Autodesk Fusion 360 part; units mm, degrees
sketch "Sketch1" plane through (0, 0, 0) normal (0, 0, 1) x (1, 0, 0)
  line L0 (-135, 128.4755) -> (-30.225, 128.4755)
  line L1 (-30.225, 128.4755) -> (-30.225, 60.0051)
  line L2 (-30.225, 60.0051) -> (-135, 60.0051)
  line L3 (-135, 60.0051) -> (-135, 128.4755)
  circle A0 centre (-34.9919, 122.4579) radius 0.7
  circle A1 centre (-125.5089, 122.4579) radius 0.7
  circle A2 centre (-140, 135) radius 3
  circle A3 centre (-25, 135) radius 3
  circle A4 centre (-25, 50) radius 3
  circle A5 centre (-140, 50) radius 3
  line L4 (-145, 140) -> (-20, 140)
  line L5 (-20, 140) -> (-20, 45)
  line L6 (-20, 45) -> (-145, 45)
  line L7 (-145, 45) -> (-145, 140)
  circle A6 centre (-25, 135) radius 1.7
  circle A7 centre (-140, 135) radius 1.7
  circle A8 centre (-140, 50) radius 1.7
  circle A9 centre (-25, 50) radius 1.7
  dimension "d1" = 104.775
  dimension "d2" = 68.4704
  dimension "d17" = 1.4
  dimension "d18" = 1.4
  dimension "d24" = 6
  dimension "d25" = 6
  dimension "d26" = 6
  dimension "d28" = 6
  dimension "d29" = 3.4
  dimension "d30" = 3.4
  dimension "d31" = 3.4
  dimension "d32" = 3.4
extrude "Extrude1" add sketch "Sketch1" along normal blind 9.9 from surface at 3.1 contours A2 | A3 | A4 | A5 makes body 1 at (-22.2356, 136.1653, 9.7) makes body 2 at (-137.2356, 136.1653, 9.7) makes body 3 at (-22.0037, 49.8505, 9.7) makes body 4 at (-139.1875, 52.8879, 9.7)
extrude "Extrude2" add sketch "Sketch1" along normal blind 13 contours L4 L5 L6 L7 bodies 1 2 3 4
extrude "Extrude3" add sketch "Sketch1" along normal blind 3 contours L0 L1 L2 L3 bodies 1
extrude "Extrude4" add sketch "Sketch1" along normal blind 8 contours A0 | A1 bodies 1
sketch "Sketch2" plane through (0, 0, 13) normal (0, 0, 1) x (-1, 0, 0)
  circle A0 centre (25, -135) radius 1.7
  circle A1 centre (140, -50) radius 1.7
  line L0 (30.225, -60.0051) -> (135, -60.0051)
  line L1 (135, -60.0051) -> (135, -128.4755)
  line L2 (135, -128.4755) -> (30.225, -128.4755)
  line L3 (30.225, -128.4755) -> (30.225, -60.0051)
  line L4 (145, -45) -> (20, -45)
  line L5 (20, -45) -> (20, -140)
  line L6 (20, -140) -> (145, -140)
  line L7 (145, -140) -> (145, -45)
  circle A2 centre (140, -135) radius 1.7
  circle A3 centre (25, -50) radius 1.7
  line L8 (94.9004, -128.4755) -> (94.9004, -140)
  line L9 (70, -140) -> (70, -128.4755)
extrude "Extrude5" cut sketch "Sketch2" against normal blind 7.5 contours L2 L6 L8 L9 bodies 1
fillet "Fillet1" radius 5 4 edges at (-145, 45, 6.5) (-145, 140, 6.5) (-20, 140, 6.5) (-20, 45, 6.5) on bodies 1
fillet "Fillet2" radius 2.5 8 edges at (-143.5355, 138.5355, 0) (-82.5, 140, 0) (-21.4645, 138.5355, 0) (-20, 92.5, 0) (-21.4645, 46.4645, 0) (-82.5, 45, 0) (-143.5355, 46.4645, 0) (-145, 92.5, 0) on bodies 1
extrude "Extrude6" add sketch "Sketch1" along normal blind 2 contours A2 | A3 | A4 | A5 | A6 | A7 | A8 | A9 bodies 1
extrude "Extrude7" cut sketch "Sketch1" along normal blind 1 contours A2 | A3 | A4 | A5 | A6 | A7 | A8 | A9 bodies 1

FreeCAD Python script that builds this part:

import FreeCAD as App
import Part
import Sketcher
from FreeCAD import Vector


def edges_at(feature, points):
    """Names of the edges that pass closest to the given points."""
    edges = feature.Shape.Edges
    near = lambda p: min(range(len(edges)), key=lambda i: edges[i].distToShape(Part.Vertex(*p))[0])
    return sorted({f"Edge{near(p) + 1}" for p in points})

doc = App.newDocument("Part")
body = doc.addObject("PartDesign::Body", "Body")
body.AllowCompound = True

sketch1 = doc.addObject("Sketcher::SketchObject", "Sketch")
body.addObject(sketch1)
sketch1.AttachmentSupport = (doc.XY_Plane, [""])
sketch1.MapMode = "FlatFace"
sketch1.AttachmentOffset = App.Placement(Vector(0, 0, 3.1), App.Rotation())
sketch1.addGeometry(Part.Circle(Vector(-140, 135, 0), Vector(0, 0, 1), 3), False)
sketch1.addGeometry(Part.Circle(Vector(-140, 135, 0), Vector(0, 0, 1), 1.7), False)
sketch1.addGeometry(Part.Circle(Vector(-25, 135, 0), Vector(0, 0, 1), 3), False)
sketch1.addGeometry(Part.Circle(Vector(-25, 135, 0), Vector(0, 0, 1), 1.7), False)
sketch1.addGeometry(Part.Circle(Vector(-25, 50, 0), Vector(0, 0, 1), 3), False)
sketch1.addGeometry(Part.Circle(Vector(-25, 50, 0), Vector(0, 0, 1), 1.7), False)
sketch1.addGeometry(Part.Circle(Vector(-140, 50, 0), Vector(0, 0, 1), 3), False)
sketch1.addGeometry(Part.Circle(Vector(-140, 50, 0), Vector(0, 0, 1), 1.7), False)
sketch1.addConstraint(Sketcher.Constraint("Coincident", 1, 3, 0, 3))
sketch1.addConstraint(Sketcher.Constraint("Coincident", 3, 3, 2, 3))
sketch1.addConstraint(Sketcher.Constraint("Coincident", 5, 3, 4, 3))
sketch1.addConstraint(Sketcher.Constraint("Coincident", 7, 3, 6, 3))
sketch1.addConstraint(Sketcher.Constraint("Equal", 0, 2))
sketch1.addConstraint(Sketcher.Constraint("Equal", 1, 3))
sketch1.addConstraint(Sketcher.Constraint("Equal", 2, 4))
sketch1.addConstraint(Sketcher.Constraint("Equal", 3, 5))
sketch1.addConstraint(Sketcher.Constraint("Equal", 4, 6))
sketch1.addConstraint(Sketcher.Constraint("Equal", 5, 7))
sketch1.addConstraint(Sketcher.Constraint("Horizontal", 1, 3, 2, 3))
sketch1.addConstraint(Sketcher.Constraint("Horizontal", 5, 3, 6, 3))
sketch1.addConstraint(Sketcher.Constraint("Vertical", 3, 3, 4, 3))
sketch1.addConstraint(Sketcher.Constraint("Vertical", 1, 3, 6, 3))
sketch1.addConstraint(Sketcher.Constraint("Diameter", 0, 6.0))
sketch1.addConstraint(Sketcher.Constraint("Diameter", 1, 3.4))
sketch1.addConstraint(Sketcher.Constraint("DistanceX", 0, 3, -1, 1, 140.0))
sketch1.addConstraint(Sketcher.Constraint("DistanceY", -1, 1, 0, 3, 135.0))
sketch1.addConstraint(Sketcher.Constraint("DistanceX", 2, 3, -1, 1, 25.0))
sketch1.addConstraint(Sketcher.Constraint("DistanceY", -1, 1, 4, 3, 50.0))
pad1 = doc.addObject("PartDesign::Pad", "Pad")
body.addObject(pad1)
pad1.Profile = sketch1
pad1.Length = 9.9

sketch2 = doc.addObject("Sketcher::SketchObject", "Sketch001")
body.addObject(sketch2)
sketch2.AttachmentSupport = (doc.XY_Plane, [""])
sketch2.MapMode = "FlatFace"
sketch2.addGeometry(Part.LineSegment(Vector(-20, 140, 0), Vector(-145, 140, 0)), False)
sketch2.addGeometry(Part.LineSegment(Vector(-145, 140, 0), Vector(-145, 45, 0)), False)
sketch2.addGeometry(Part.LineSegment(Vector(-145, 45, 0), Vector(-20, 45, 0)), False)
sketch2.addGeometry(Part.LineSegment(Vector(-20, 45, 0), Vector(-20, 140, 0)), False)
sketch2.addGeometry(Part.Circle(Vector(-140, 50, 0), Vector(0, 0, 1), 3), False)
sketch2.addGeometry(Part.Circle(Vector(-25, 50, 0), Vector(0, 0, 1), 3), False)
sketch2.addGeometry(Part.LineSegment(Vector(-135, 60, 0), Vector(-135, 128.5, 0)), False)
sketch2.addGeometry(Part.LineSegment(Vector(-135, 128.5, 0), Vector(-30.2, 128.5, 0)), False)
sketch2.addGeometry(Part.LineSegment(Vector(-30.2, 128.5, 0), Vector(-30.2, 60, 0)), False)
sketch2.addGeometry(Part.LineSegment(Vector(-30.2, 60, 0), Vector(-135, 60, 0)), False)
sketch2.addGeometry(Part.Circle(Vector(-140, 135, 0), Vector(0, 0, 1), 3), False)
sketch2.addGeometry(Part.Circle(Vector(-25, 135, 0), Vector(0, 0, 1), 3), False)
sketch2.addConstraint(Sketcher.Constraint("Coincident", 0, 2, 1, 1))
sketch2.addConstraint(Sketcher.Constraint("Coincident", 1, 2, 2, 1))
sketch2.addConstraint(Sketcher.Constraint("Coincident", 2, 2, 3, 1))
sketch2.addConstraint(Sketcher.Constraint("Coincident", 3, 2, 0, 1))
sketch2.addConstraint(Sketcher.Constraint("Coincident", 6, 2, 7, 1))
sketch2.addConstraint(Sketcher.Constraint("Coincident", 7, 2, 8, 1))
sketch2.addConstraint(Sketcher.Constraint("Coincident", 8, 2, 9, 1))
sketch2.addConstraint(Sketcher.Constraint("Coincident", 9, 2, 6, 1))
sketch2.addConstraint(Sketcher.Constraint("Horizontal", 0))
sketch2.addConstraint(Sketcher.Constraint("Vertical", 1))
sketch2.addConstraint(Sketcher.Constraint("Horizontal", 2))
sketch2.addConstraint(Sketcher.Constraint("Vertical", 3))
sketch2.addConstraint(Sketcher.Constraint("Vertical", 6))
sketch2.addConstraint(Sketcher.Constraint("Horizontal", 7))
sketch2.addConstraint(Sketcher.Constraint("Vertical", 8))
sketch2.addConstraint(Sketcher.Constraint("Horizontal", 9))
sketch2.addConstraint(Sketcher.Constraint("Equal", 4, 5))
sketch2.addConstraint(Sketcher.Constraint("Equal", 5, 10))
sketch2.addConstraint(Sketcher.Constraint("Equal", 10, 11))
sketch2.addConstraint(Sketcher.Constraint("Horizontal", 4, 3, 5, 3))
sketch2.addConstraint(Sketcher.Constraint("Horizontal", 10, 3, 11, 3))
sketch2.addConstraint(Sketcher.Constraint("Vertical", 4, 3, 10, 3))
sketch2.addConstraint(Sketcher.Constraint("Vertical", 5, 3, 11, 3))
sketch2.addConstraint(Sketcher.Constraint("Diameter", 4, 6.0))
sketch2.addConstraint(Sketcher.Constraint("DistanceX", 0, 2, 0, 1, 125.0))
sketch2.addConstraint(Sketcher.Constraint("DistanceX", 7, 1, 7, 2, 104.775))
sketch2.addConstraint(Sketcher.Constraint("DistanceY", 1, 2, 1, 1, 95.0))
sketch2.addConstraint(Sketcher.Constraint("DistanceY", 6, 1, 6, 2, 68.4704))
sketch2.addConstraint(Sketcher.Constraint("DistanceX", 4, 3, -1, 1, 140.0))
sketch2.addConstraint(Sketcher.Constraint("DistanceY", -1, 1, 4, 3, 50.0))
sketch2.addConstraint(Sketcher.Constraint("DistanceX", 5, 3, -1, 1, 25.0))
sketch2.addConstraint(Sketcher.Constraint("DistanceY", -1, 1, 10, 3, 135.0))
sketch2.addConstraint(Sketcher.Constraint("DistanceX", 0, 2, -1, 1, 145.0))
sketch2.addConstraint(Sketcher.Constraint("DistanceY", -1, 1, 0, 2, 140.0))
sketch2.addConstraint(Sketcher.Constraint("DistanceX", 6, 2, -1, 1, 135.0))
sketch2.addConstraint(Sketcher.Constraint("DistanceY", -1, 1, 8, 2, 60.005))
pad2 = doc.addObject("PartDesign::Pad", "Pad001")
body.addObject(pad2)
pad2.Profile = sketch2
pad2.Length = 13

sketch3 = doc.addObject("Sketcher::SketchObject", "Sketch002")
body.addObject(sketch3)
sketch3.AttachmentSupport = (doc.XY_Plane, [""])
sketch3.MapMode = "FlatFace"
sketch3.addGeometry(Part.LineSegment(Vector(-30.2, 128.5, 0), Vector(-135, 128.5, 0)), False)
sketch3.addGeometry(Part.LineSegment(Vector(-135, 128.5, 0), Vector(-135, 60, 0)), False)
sketch3.addGeometry(Part.LineSegment(Vector(-135, 60, 0), Vector(-30.2, 60, 0)), False)
sketch3.addGeometry(Part.LineSegment(Vector(-30.2, 60, 0), Vector(-30.2, 128.5, 0)), False)
sketch3.addGeometry(Part.Circle(Vector(-125.5, 122.5, 0), Vector(0, 0, 1), 0.7), False)
sketch3.addGeometry(Part.Circle(Vector(-35, 122.5, 0), Vector(0, 0, 1), 0.7), False)
sketch3.addConstraint(Sketcher.Constraint("Coincident", 0, 2, 1, 1))
sketch3.addConstraint(Sketcher.Constraint("Coincident", 1, 2, 2, 1))
sketch3.addConstraint(Sketcher.Constraint("Coincident", 2, 2, 3, 1))
sketch3.addConstraint(Sketcher.Constraint("Coincident", 3, 2, 0, 1))
sketch3.addConstraint(Sketcher.Constraint("Horizontal", 0))
sketch3.addConstraint(Sketcher.Constraint("Vertical", 1))
sketch3.addConstraint(Sketcher.Constraint("Horizontal", 2))
sketch3.addConstraint(Sketcher.Constraint("Vertical", 3))
sketch3.addConstraint(Sketcher.Constraint("Equal", 4, 5))
sketch3.addConstraint(Sketcher.Constraint("Horizontal", 4, 3, 5, 3))
sketch3.addConstraint(Sketcher.Constraint("Diameter", 4, 1.4))
sketch3.addConstraint(Sketcher.Constraint("DistanceX", 0, 2, 0, 1, 104.775))
sketch3.addConstraint(Sketcher.Constraint("DistanceY", 1, 2, 1, 1, 68.4704))
sketch3.addConstraint(Sketcher.Constraint("DistanceX", 0, 2, -1, 1, 135.0))
sketch3.addConstraint(Sketcher.Constraint("DistanceX", 4, 3, -1, 1, 125.509))
sketch3.addConstraint(Sketcher.Constraint("DistanceY", -1, 1, 4, 3, 122.458))
sketch3.addConstraint(Sketcher.Constraint("DistanceX", 5, 3, -1, 1, 34.992))
sketch3.addConstraint(Sketcher.Constraint("DistanceY", -1, 1, 1, 2, 60.005))
pad3 = doc.addObject("PartDesign::Pad", "Pad002")
body.addObject(pad3)
pad3.Profile = sketch3
pad3.Length = 3

sketch4 = doc.addObject("Sketcher::SketchObject", "Sketch003")
body.addObject(sketch4)
sketch4.AttachmentSupport = (doc.XY_Plane, [""])
sketch4.MapMode = "FlatFace"
sketch4.addGeometry(Part.Circle(Vector(-35, 122.5, 0), Vector(0, 0, 1), 0.7), False)
sketch4.addGeometry(Part.Circle(Vector(-125.5, 122.5, 0), Vector(0, 0, 1), 0.7), False)
sketch4.addConstraint(Sketcher.Constraint("Equal", 0, 1))
sketch4.addConstraint(Sketcher.Constraint("Horizontal", 0, 3, 1, 3))
sketch4.addConstraint(Sketcher.Constraint("Diameter", 0, 1.4))
sketch4.addConstraint(Sketcher.Constraint("DistanceX", 0, 3, -1, 1, 34.992))
sketch4.addConstraint(Sketcher.Constraint("DistanceY", -1, 1, 0, 3, 122.458))
sketch4.addConstraint(Sketcher.Constraint("DistanceX", 1, 3, -1, 1, 125.509))
pad4 = doc.addObject("PartDesign::Pad", "Pad003")
body.addObject(pad4)
pad4.Profile = sketch4
pad4.Length = 8

sketch5 = doc.addObject("Sketcher::SketchObject", "Sketch004")
body.addObject(sketch5)
sketch5.AttachmentSupport = (doc.XY_Plane, [""])
sketch5.MapMode = "FlatFace"
sketch5.AttachmentOffset = App.Placement(Vector(0, 0, 13), App.Rotation())
sketch5.addGeometry(Part.LineSegment(Vector(-95, 128, 0), Vector(-70, 128, 0)), False)
sketch5.addGeometry(Part.LineSegment(Vector(-70, 128, 0), Vector(-70, 140, 0)), False)
sketch5.addGeometry(Part.LineSegment(Vector(-70, 140, 0), Vector(-95, 140, 0)), False)
sketch5.addGeometry(Part.LineSegment(Vector(-95, 140, 0), Vector(-95, 128, 0)), False)
sketch5.addConstraint(Sketcher.Constraint("Coincident", 0, 2, 1, 1))
sketch5.addConstraint(Sketcher.Constraint("Coincident", 1, 2, 2, 1))
sketch5.addConstraint(Sketcher.Constraint("Coincident", 2, 2, 3, 1))
sketch5.addConstraint(Sketcher.Constraint("Coincident", 3, 2, 0, 1))
sketch5.addConstraint(Sketcher.Constraint("Horizontal", 0))
sketch5.addConstraint(Sketcher.Constraint("Vertical", 1))
sketch5.addConstraint(Sketcher.Constraint("Horizontal", 2))
sketch5.addConstraint(Sketcher.Constraint("Vertical", 3))
sketch5.addConstraint(Sketcher.Constraint("DistanceX", 0, 2, -1, 1, 70.0))
sketch5.addConstraint(Sketcher.Constraint("DistanceY", -1, 1, 1, 2, 140.0))
sketch5.addConstraint(Sketcher.Constraint("DistanceX", 0, 1, 0, 2, 24.9004))
sketch5.addConstraint(Sketcher.Constraint("DistanceY", 1, 1, 1, 2, 11.5245))
pocket1 = doc.addObject("PartDesign::Pocket", "Pocket")
body.addObject(pocket1)
pocket1.Profile = sketch5
pocket1.Length = 7.5
doc.recompute()

fillet = doc.addObject("PartDesign::Fillet", "Fillet")
body.addObject(fillet)
fillet.Base = (pocket1, edges_at(pocket1, [
    (-145, 45, 6.5),
    (-145, 140, 6.5),
    (-20, 140, 6.5),
    (-20, 45, 6.5),
]))
fillet.Radius = 5
doc.recompute()

fillet2 = doc.addObject("PartDesign::Fillet", "Fillet001")
body.addObject(fillet2)
fillet2.Base = (fillet, edges_at(fillet, [
    (-143.536, 138.536, 0),
    (-82.5, 140, 0),
    (-21.465, 138.536, 0),
    (-20, 92.5, 0),
    (-21.465, 46.465, 0),
    (-82.5, 45, 0),
    (-143.536, 46.465, 0),
    (-145, 92.5, 0),
]))
fillet2.Radius = 2.5

sketch6 = doc.addObject("Sketcher::SketchObject", "Sketch005")
body.addObject(sketch6)
sketch6.AttachmentSupport = (doc.XY_Plane, [""])
sketch6.MapMode = "FlatFace"
sketch6.addGeometry(Part.Circle(Vector(-140, 135, 0), Vector(0, 0, 1), 3), False)
sketch6.addGeometry(Part.Circle(Vector(-25, 135, 0), Vector(0, 0, 1), 3), False)
sketch6.addGeometry(Part.Circle(Vector(-25, 50, 0), Vector(0, 0, 1), 3), False)
sketch6.addGeometry(Part.Circle(Vector(-140, 50, 0), Vector(0, 0, 1), 3), False)
sketch6.addConstraint(Sketcher.Constraint("Equal", 0, 1))
sketch6.addConstraint(Sketcher.Constraint("Equal", 1, 2))
sketch6.addConstraint(Sketcher.Constraint("Equal", 2, 3))
sketch6.addConstraint(Sketcher.Constraint("Horizontal", 0, 3, 1, 3))
sketch6.addConstraint(Sketcher.Constraint("Horizontal", 2, 3, 3, 3))
sketch6.addConstraint(Sketcher.Constraint("Vertical", 1, 3, 2, 3))
sketch6.addConstraint(Sketcher.Constraint("Vertical", 0, 3, 3, 3))
sketch6.addConstraint(Sketcher.Constraint("Diameter", 0, 6.0))
sketch6.addConstraint(Sketcher.Constraint("DistanceX", 0, 3, -1, 1, 140.0))
sketch6.addConstraint(Sketcher.Constraint("DistanceY", -1, 1, 0, 3, 135.0))
sketch6.addConstraint(Sketcher.Constraint("DistanceX", 1, 3, -1, 1, 25.0))
sketch6.addConstraint(Sketcher.Constraint("DistanceY", -1, 1, 2, 3, 50.0))
pad5 = doc.addObject("PartDesign::Pad", "Pad004")
body.addObject(pad5)
pad5.Profile = sketch6
pad5.Length = 2

sketch7 = doc.addObject("Sketcher::SketchObject", "Sketch006")
body.addObject(sketch7)
sketch7.AttachmentSupport = (doc.XY_Plane, [""])
sketch7.MapMode = "FlatFace"
sketch7.addGeometry(Part.Circle(Vector(-140, 135, 0), Vector(0, 0, 1), 3), False)
sketch7.addGeometry(Part.Circle(Vector(-25, 135, 0), Vector(0, 0, 1), 3), False)
sketch7.addGeometry(Part.Circle(Vector(-25, 50, 0), Vector(0, 0, 1), 3), False)
sketch7.addGeometry(Part.Circle(Vector(-140, 50, 0), Vector(0, 0, 1), 3), False)
sketch7.addConstraint(Sketcher.Constraint("Equal", 0, 1))
sketch7.addConstraint(Sketcher.Constraint("Equal", 1, 2))
sketch7.addConstraint(Sketcher.Constraint("Equal", 2, 3))
sketch7.addConstraint(Sketcher.Constraint("Horizontal", 0, 3, 1, 3))
sketch7.addConstraint(Sketcher.Constraint("Horizontal", 2, 3, 3, 3))
sketch7.addConstraint(Sketcher.Constraint("Vertical", 1, 3, 2, 3))
sketch7.addConstraint(Sketcher.Constraint("Vertical", 0, 3, 3, 3))
sketch7.addConstraint(Sketcher.Constraint("Diameter", 0, 6.0))
sketch7.addConstraint(Sketcher.Constraint("DistanceX", 0, 3, -1, 1, 140.0))
sketch7.addConstraint(Sketcher.Constraint("DistanceY", -1, 1, 0, 3, 135.0))
sketch7.addConstraint(Sketcher.Constraint("DistanceX", 1, 3, -1, 1, 25.0))
sketch7.addConstraint(Sketcher.Constraint("DistanceY", -1, 1, 2, 3, 50.0))
pocket2 = doc.addObject("PartDesign::Pocket", "Pocket001")
body.addObject(pocket2)
pocket2.Profile = sketch7
pocket2.Length = 1
pocket2.Reversed = True

doc.recompute()
